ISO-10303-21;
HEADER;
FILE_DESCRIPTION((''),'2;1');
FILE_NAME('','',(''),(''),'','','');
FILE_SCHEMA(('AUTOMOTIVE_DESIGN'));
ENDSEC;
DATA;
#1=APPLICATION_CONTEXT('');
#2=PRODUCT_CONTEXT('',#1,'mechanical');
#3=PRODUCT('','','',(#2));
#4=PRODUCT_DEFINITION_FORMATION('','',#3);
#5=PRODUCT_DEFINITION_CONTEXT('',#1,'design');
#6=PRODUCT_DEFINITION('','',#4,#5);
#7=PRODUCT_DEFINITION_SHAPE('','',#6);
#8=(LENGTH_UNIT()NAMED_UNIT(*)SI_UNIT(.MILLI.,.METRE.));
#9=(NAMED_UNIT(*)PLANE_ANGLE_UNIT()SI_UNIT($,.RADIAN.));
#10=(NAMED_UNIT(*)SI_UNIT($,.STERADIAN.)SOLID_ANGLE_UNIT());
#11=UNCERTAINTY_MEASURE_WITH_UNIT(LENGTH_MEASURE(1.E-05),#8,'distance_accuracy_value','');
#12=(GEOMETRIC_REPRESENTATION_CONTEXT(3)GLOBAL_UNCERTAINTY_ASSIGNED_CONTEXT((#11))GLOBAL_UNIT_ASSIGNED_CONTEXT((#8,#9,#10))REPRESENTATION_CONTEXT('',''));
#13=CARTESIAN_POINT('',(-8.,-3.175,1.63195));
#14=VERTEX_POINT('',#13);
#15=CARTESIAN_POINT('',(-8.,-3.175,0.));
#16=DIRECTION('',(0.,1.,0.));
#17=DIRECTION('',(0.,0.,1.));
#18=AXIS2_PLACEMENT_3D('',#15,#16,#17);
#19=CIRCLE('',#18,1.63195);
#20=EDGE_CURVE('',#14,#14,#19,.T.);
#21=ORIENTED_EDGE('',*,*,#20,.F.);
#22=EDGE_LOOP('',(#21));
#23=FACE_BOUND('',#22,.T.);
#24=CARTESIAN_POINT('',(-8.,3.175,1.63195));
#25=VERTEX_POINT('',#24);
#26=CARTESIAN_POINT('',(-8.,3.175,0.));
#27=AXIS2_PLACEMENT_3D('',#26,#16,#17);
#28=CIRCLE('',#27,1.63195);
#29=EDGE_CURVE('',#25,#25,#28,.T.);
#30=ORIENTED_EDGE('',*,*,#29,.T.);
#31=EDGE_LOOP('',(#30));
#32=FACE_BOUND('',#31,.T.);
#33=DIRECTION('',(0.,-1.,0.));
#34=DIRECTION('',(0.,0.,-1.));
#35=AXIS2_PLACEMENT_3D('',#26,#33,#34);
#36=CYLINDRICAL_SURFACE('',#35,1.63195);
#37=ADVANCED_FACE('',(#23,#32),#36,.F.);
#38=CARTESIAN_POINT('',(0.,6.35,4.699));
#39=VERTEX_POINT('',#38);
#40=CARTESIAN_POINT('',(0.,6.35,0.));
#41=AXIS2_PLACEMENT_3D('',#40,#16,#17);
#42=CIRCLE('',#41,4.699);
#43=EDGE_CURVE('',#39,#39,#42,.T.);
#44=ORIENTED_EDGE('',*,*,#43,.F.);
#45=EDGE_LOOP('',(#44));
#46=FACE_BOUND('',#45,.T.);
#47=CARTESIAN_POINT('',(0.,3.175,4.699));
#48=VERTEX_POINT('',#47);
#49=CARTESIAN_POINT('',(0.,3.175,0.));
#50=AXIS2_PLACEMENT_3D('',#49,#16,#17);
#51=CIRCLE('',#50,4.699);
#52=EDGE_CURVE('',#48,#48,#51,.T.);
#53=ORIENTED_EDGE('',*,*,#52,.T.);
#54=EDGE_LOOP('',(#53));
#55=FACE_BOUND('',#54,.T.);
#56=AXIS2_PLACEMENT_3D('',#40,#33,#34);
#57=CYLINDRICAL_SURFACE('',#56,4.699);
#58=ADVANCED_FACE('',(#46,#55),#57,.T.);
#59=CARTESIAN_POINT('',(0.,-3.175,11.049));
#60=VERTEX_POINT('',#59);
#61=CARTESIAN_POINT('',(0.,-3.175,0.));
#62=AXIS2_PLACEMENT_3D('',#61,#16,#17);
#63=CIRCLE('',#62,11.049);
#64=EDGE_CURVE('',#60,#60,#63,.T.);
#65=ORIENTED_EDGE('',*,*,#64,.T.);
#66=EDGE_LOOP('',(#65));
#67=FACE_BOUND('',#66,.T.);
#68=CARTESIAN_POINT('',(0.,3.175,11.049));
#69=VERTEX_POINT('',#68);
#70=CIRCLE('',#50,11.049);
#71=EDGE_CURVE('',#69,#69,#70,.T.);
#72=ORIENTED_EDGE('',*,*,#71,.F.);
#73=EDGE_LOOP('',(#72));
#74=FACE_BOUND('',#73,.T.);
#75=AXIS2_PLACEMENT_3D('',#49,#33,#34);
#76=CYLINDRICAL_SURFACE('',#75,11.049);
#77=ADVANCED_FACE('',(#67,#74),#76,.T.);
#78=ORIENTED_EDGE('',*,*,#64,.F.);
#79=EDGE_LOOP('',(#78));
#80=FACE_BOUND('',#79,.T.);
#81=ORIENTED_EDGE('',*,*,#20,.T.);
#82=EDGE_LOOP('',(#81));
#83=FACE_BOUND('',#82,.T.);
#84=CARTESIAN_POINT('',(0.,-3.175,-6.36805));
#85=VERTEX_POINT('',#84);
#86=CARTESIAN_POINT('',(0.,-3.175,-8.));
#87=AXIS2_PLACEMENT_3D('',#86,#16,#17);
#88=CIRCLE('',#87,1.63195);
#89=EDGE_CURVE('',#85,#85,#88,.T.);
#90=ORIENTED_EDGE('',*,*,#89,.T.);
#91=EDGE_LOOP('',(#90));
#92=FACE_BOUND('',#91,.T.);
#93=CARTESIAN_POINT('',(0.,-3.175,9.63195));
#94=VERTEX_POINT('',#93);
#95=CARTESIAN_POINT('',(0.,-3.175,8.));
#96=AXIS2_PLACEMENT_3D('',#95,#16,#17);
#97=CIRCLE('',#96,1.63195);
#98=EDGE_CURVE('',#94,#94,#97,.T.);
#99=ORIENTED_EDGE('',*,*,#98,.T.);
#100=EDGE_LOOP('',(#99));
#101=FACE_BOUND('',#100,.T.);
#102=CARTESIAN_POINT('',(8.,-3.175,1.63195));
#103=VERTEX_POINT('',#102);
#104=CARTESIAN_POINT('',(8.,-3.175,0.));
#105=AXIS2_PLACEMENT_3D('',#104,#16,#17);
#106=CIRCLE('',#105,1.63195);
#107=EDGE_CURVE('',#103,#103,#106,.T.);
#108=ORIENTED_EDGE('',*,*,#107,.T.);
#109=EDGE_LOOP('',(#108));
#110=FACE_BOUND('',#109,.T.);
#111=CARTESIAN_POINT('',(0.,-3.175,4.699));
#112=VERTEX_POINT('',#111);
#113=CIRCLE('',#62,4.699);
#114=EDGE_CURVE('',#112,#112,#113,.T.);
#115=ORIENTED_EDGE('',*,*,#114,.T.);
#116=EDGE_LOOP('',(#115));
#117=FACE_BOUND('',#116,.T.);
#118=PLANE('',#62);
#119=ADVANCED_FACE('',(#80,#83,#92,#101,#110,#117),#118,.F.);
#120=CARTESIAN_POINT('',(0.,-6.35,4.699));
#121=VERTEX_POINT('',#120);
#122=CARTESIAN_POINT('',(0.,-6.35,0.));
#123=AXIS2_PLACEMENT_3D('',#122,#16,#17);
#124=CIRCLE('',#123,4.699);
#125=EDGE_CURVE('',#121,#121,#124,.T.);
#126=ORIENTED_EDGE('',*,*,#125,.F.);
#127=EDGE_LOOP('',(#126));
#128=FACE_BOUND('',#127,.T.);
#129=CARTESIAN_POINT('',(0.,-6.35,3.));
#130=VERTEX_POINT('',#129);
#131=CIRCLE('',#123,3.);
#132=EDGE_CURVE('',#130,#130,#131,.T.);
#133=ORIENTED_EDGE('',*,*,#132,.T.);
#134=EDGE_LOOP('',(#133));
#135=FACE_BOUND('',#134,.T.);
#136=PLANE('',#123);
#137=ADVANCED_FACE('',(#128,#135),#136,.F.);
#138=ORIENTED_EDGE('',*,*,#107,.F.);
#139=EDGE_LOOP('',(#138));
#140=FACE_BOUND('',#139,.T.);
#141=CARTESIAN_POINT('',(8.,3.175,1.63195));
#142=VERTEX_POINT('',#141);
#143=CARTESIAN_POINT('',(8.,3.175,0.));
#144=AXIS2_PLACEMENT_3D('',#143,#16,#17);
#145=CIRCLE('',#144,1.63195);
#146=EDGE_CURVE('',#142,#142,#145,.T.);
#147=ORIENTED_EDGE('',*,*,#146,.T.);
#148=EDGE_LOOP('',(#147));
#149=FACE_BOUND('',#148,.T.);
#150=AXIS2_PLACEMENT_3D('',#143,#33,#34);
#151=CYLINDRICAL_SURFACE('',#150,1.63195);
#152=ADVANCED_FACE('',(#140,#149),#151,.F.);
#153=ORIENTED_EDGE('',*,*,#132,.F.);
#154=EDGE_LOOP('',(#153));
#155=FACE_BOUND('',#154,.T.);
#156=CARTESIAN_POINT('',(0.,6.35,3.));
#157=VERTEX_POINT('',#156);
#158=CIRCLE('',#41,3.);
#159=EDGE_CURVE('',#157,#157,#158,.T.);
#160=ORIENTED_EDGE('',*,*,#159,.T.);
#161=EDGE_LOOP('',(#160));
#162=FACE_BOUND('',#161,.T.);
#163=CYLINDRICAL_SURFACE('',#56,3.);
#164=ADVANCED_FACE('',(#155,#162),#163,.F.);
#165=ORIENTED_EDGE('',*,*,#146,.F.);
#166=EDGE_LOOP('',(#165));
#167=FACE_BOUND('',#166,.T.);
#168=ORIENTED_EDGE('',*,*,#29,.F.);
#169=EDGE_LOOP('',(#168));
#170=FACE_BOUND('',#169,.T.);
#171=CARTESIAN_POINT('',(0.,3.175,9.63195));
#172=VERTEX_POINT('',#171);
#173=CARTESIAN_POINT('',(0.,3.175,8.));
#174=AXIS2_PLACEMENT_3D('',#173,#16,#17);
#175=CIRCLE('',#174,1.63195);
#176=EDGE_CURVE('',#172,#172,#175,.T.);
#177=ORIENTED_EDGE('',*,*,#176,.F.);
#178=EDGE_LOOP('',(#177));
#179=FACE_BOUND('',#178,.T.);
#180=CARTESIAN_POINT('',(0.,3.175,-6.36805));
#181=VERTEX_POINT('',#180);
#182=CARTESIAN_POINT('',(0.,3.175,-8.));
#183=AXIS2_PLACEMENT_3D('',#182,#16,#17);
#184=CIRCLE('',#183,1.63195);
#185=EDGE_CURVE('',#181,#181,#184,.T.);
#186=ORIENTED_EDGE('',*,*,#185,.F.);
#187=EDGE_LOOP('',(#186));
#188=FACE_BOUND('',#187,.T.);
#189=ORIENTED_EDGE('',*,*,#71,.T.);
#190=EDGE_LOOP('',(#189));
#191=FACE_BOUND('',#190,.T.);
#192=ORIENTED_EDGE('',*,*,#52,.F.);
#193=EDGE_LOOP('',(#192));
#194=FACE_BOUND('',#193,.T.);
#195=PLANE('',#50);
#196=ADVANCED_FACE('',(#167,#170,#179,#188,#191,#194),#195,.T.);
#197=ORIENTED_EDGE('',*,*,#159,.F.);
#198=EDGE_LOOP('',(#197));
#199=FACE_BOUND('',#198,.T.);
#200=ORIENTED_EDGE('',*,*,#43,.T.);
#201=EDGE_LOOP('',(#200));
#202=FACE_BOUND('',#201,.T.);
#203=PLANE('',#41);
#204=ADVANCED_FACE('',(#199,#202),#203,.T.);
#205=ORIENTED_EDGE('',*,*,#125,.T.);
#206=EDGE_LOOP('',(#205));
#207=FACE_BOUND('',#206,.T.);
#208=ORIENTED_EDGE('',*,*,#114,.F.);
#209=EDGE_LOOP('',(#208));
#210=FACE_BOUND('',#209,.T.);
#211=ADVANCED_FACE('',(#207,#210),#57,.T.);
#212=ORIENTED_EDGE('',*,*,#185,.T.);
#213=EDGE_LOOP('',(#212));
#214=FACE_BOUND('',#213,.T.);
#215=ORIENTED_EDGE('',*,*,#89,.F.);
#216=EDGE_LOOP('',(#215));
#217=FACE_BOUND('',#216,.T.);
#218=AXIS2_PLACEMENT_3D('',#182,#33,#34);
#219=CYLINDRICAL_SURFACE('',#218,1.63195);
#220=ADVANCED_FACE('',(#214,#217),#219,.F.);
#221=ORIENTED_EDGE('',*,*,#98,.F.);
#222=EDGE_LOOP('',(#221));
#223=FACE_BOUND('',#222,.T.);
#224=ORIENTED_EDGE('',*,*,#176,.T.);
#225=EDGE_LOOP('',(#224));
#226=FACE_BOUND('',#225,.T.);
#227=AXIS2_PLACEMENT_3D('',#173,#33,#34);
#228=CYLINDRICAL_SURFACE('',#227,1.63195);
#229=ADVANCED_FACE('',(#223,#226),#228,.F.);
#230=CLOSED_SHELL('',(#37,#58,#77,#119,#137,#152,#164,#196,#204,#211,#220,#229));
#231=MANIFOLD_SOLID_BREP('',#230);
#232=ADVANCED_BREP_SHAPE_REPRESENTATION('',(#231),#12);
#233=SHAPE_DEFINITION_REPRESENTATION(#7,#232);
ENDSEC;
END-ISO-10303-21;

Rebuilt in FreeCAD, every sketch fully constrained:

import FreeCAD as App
import Part
import Sketcher

V = App.Vector
Q = App.Units.Quantity

doc = App.newDocument("Part")
body = doc.addObject("PartDesign::Body", "Body")

# Sketch on XZ plane
sketch1 = body.newObject("Sketcher::SketchObject", "Sketch")
sketch1.AttachmentSupport = (doc.getObject("XZ_Plane"), [""])
sketch1.MapMode = "FlatFace"
sketch1.addGeometry([
    Part.Circle(V(0, 0, 0), V(0, 0, 1), 4.7),
    Part.Circle(V(0, 0, 0), V(0, 0, 1), 3),
], False)
sketch1.addConstraint([
    Sketcher.Constraint("Coincident", 0, 3, -1, 1),
    Sketcher.Constraint("Coincident", 1, 3, -1, 1),
    Sketcher.Constraint("Diameter", 0, Q("0.37 in")),
    Sketcher.Constraint("Diameter", 1, 6.0),
])
pad1 = body.newObject("PartDesign::Pad", "Pad")
pad1.Profile = sketch1
pad1.Length = Q("0.5 in")
pad1.Midplane = True

# Sketch on XZ plane
sketch2 = body.newObject("Sketcher::SketchObject", "Sketch001")
sketch2.AttachmentSupport = (doc.getObject("XZ_Plane"), [""])
sketch2.MapMode = "FlatFace"
sketch2.addGeometry([
    Part.Circle(V(0, 0, 0), V(0, 0, 1), 11),  # 0
    Part.Circle(V(0, 8, 0), V(0, 0, 1), 1.6),  # 1
    Part.Circle(V(-8, 0, 0), V(0, 0, 1), 1.6),  # 2
    Part.Circle(V(0, 0, 0), V(0, 0, 1), 4.7),  # 3
    Part.Circle(V(8, 0, 0), V(0, 0, 1), 1.6),  # 4
    Part.Circle(V(0, -8, 0), V(0, 0, 1), 1.6),  # 5
], False)
sketch2.addConstraint([
    Sketcher.Constraint("Coincident", 0, 3, -1, 1),
    Sketcher.Constraint("Coincident", 3, 3, -1, 1),
    Sketcher.Constraint("Equal", 1, 2),
    Sketcher.Constraint("Equal", 2, 4),
    Sketcher.Constraint("Equal", 4, 5),
    Sketcher.Constraint("Symmetric", 2, 3, 4, 3, -1, 1),
    Sketcher.Constraint("Symmetric", 1, 3, 5, 3, -1, 1),
    Sketcher.Constraint("PointOnObject", 1, 3, -2),
    Sketcher.Constraint("PointOnObject", 2, 3, -1),
    Sketcher.Constraint("Diameter", 0, Q("0.87 in")),
    Sketcher.Constraint("Diameter", 3, Q("0.37 in")),
    Sketcher.Constraint("Diameter", 1, Q("0.1285 in")),
    Sketcher.Constraint("DistanceY", -1, 1, 1, 3, 8.0),
    Sketcher.Constraint("DistanceX", 2, 3, -1, 1, 8.0),
])
pad2 = body.newObject("PartDesign::Pad", "Pad001")
pad2.Profile = sketch2
pad2.Length = Q("0.25 in")
pad2.Midplane = True

doc.recompute()
